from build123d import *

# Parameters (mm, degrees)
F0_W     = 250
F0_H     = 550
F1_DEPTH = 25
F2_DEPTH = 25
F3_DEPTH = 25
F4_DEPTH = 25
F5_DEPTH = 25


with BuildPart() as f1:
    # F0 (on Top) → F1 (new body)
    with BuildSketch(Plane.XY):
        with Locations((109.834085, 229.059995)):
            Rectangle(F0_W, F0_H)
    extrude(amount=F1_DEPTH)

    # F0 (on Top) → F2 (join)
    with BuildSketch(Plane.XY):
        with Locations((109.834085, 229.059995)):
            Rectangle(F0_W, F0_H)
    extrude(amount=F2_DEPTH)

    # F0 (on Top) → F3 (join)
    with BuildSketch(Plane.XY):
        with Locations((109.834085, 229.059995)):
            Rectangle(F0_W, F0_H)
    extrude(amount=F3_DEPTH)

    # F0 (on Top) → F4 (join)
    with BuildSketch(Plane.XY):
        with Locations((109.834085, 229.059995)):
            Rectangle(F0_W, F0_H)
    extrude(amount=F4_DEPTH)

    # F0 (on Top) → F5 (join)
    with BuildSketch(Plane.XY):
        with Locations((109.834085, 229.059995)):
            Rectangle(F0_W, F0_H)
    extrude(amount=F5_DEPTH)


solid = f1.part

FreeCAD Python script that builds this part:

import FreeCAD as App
import Part
import Sketcher

V = App.Vector
Q = App.Units.Quantity

doc = App.newDocument("Part")
params = doc.addObject("Spreadsheet::Sheet", "Params")
for row, (alias, value) in enumerate([
    ("sketch1_width", "250 mm"),
    ("sketch1_height", "550 mm"),
    ("pad1_length", "25 mm"),
    ("sketch2_width", "250 mm"),
    ("sketch2_height", "550 mm"),
    ("pad2_length", "25 mm"),
    ("sketch3_width", "250 mm"),
    ("sketch3_height", "550 mm"),
    ("pad3_length", "25 mm"),
    ("sketch4_width", "250 mm"),
    ("sketch4_height", "550 mm"),
    ("pad4_length", "25 mm"),
    ("sketch5_width", "250 mm"),
    ("sketch5_height", "550 mm"),
    ("pad5_length", "25 mm"),
], start=1):
    params.set(f"A{row}", alias)
    params.set(f"B{row}", "=" + value)
    params.setAlias(f"B{row}", alias)

body = doc.addObject("PartDesign::Body", "Body")

sketch1 = body.newObject("Sketcher::SketchObject", "Sketch")
sketch1.AttachmentSupport = (doc.getObject("XY_Plane"), [""])
sketch1.MapMode = "FlatFace"
sketch1.addGeometry([
    Part.LineSegment(V(-15.165915, 504.059995, 0), V(-15.165915, -45.940005, 0)),
    Part.LineSegment(V(-15.165915, -45.940005, 0), V(234.834085, -45.940005, 0)),
    Part.LineSegment(V(234.834085, -45.940005, 0), V(234.834085, 504.059995, 0)),
    Part.LineSegment(V(234.834085, 504.059995, 0), V(-15.165915, 504.059995, 0)),
], False)
sketch1.addConstraint([
    Sketcher.Constraint("Coincident", 0, 2, 1, 1),
    Sketcher.Constraint("Coincident", 1, 2, 2, 1),
    Sketcher.Constraint("Coincident", 2, 2, 3, 1),
    Sketcher.Constraint("Coincident", 3, 2, 0, 1),
    Sketcher.Constraint("Vertical", 0),
    Sketcher.Constraint("Horizontal", 1),
    Sketcher.Constraint("Vertical", 2),
    Sketcher.Constraint("Horizontal", 3),
    Sketcher.Constraint("DistanceX", 1, 1, 1, 2, Q("250 mm")),
    Sketcher.Constraint("DistanceY", 0, 2, 0, 1, Q("550 mm")),
    Sketcher.Constraint("DistanceX", 0, 2, -1, 1, Q("15.165915 mm")),
    Sketcher.Constraint("DistanceY", 0, 2, -1, 1, Q("45.940005 mm")),
])
sketch1.setExpression("Constraints[8]", "Params.sketch1_width")
sketch1.setExpression("Constraints[9]", "Params.sketch1_height")
pad1 = body.newObject("PartDesign::Pad", "Pad")
pad1.Profile = sketch1
pad1.setExpression("Length", "Params.pad1_length")

sketch2 = body.newObject("Sketcher::SketchObject", "Sketch001")
sketch2.AttachmentSupport = (doc.getObject("XY_Plane"), [""])
sketch2.MapMode = "FlatFace"
sketch2.addGeometry([
    Part.LineSegment(V(-15.165915, 504.059995, 0), V(-15.165915, -45.940005, 0)),
    Part.LineSegment(V(-15.165915, -45.940005, 0), V(234.834085, -45.940005, 0)),
    Part.LineSegment(V(234.834085, -45.940005, 0), V(234.834085, 504.059995, 0)),
    Part.LineSegment(V(234.834085, 504.059995, 0), V(-15.165915, 504.059995, 0)),
], False)
sketch2.addConstraint([
    Sketcher.Constraint("Coincident", 0, 2, 1, 1),
    Sketcher.Constraint("Coincident", 1, 2, 2, 1),
    Sketcher.Constraint("Coincident", 2, 2, 3, 1),
    Sketcher.Constraint("Coincident", 3, 2, 0, 1),
    Sketcher.Constraint("Vertical", 0),
    Sketcher.Constraint("Horizontal", 1),
    Sketcher.Constraint("Vertical", 2),
    Sketcher.Constraint("Horizontal", 3),
    Sketcher.Constraint("DistanceX", 1, 1, 1, 2, Q("250 mm")),
    Sketcher.Constraint("DistanceY", 0, 2, 0, 1, Q("550 mm")),
    Sketcher.Constraint("DistanceX", 0, 2, -1, 1, Q("15.165915 mm")),
    Sketcher.Constraint("DistanceY", 0, 2, -1, 1, Q("45.940005 mm")),
])
sketch2.setExpression("Constraints[8]", "Params.sketch2_width")
sketch2.setExpression("Constraints[9]", "Params.sketch2_height")
pad2 = body.newObject("PartDesign::Pad", "Pad001")
pad2.Profile = sketch2
pad2.setExpression("Length", "Params.pad2_length")

sketch3 = body.newObject("Sketcher::SketchObject", "Sketch002")
sketch3.AttachmentSupport = (doc.getObject("XY_Plane"), [""])
sketch3.MapMode = "FlatFace"
sketch3.addGeometry([
    Part.LineSegment(V(-15.165915, 504.059995, 0), V(-15.165915, -45.940005, 0)),
    Part.LineSegment(V(-15.165915, -45.940005, 0), V(234.834085, -45.940005, 0)),
    Part.LineSegment(V(234.834085, -45.940005, 0), V(234.834085, 504.059995, 0)),
    Part.LineSegment(V(234.834085, 504.059995, 0), V(-15.165915, 504.059995, 0)),
], False)
sketch3.addConstraint([
    Sketcher.Constraint("Coincident", 0, 2, 1, 1),
    Sketcher.Constraint("Coincident", 1, 2, 2, 1),
    Sketcher.Constraint("Coincident", 2, 2, 3, 1),
    Sketcher.Constraint("Coincident", 3, 2, 0, 1),
    Sketcher.Constraint("Vertical", 0),
    Sketcher.Constraint("Horizontal", 1),
    Sketcher.Constraint("Vertical", 2),
    Sketcher.Constraint("Horizontal", 3),
    Sketcher.Constraint("DistanceX", 1, 1, 1, 2, Q("250 mm")),
    Sketcher.Constraint("DistanceY", 0, 2, 0, 1, Q("550 mm")),
    Sketcher.Constraint("DistanceX", 0, 2, -1, 1, Q("15.165915 mm")),
    Sketcher.Constraint("DistanceY", 0, 2, -1, 1, Q("45.940005 mm")),
])
sketch3.setExpression("Constraints[8]", "Params.sketch3_width")
sketch3.setExpression("Constraints[9]", "Params.sketch3_height")
pad3 = body.newObject("PartDesign::Pad", "Pad002")
pad3.Profile = sketch3
pad3.setExpression("Length", "Params.pad3_length")

sketch4 = body.newObject("Sketcher::SketchObject", "Sketch003")
sketch4.AttachmentSupport = (doc.getObject("XY_Plane"), [""])
sketch4.MapMode = "FlatFace"
sketch4.addGeometry([
    Part.LineSegment(V(-15.165915, 504.059995, 0), V(-15.165915, -45.940005, 0)),
    Part.LineSegment(V(-15.165915, -45.940005, 0), V(234.834085, -45.940005, 0)),
    Part.LineSegment(V(234.834085, -45.940005, 0), V(234.834085, 504.059995, 0)),
    Part.LineSegment(V(234.834085, 504.059995, 0), V(-15.165915, 504.059995, 0)),
], False)
sketch4.addConstraint([
    Sketcher.Constraint("Coincident", 0, 2, 1, 1),
    Sketcher.Constraint("Coincident", 1, 2, 2, 1),
    Sketcher.Constraint("Coincident", 2, 2, 3, 1),
    Sketcher.Constraint("Coincident", 3, 2, 0, 1),
    Sketcher.Constraint("Vertical", 0),
    Sketcher.Constraint("Horizontal", 1),
    Sketcher.Constraint("Vertical", 2),
    Sketcher.Constraint("Horizontal", 3),
    Sketcher.Constraint("DistanceX", 1, 1, 1, 2, Q("250 mm")),
    Sketcher.Constraint("DistanceY", 0, 2, 0, 1, Q("550 mm")),
    Sketcher.Constraint("DistanceX", 0, 2, -1, 1, Q("15.165915 mm")),
    Sketcher.Constraint("DistanceY", 0, 2, -1, 1, Q("45.940005 mm")),
])
sketch4.setExpression("Constraints[8]", "Params.sketch4_width")
sketch4.setExpression("Constraints[9]", "Params.sketch4_height")
pad4 = body.newObject("PartDesign::Pad", "Pad003")
pad4.Profile = sketch4
pad4.setExpression("Length", "Params.pad4_length")

sketch5 = body.newObject("Sketcher::SketchObject", "Sketch004")
sketch5.AttachmentSupport = (doc.getObject("XY_Plane"), [""])
sketch5.MapMode = "FlatFace"
sketch5.addGeometry([
    Part.LineSegment(V(-15.165915, 504.059995, 0), V(-15.165915, -45.940005, 0)),
    Part.LineSegment(V(-15.165915, -45.940005, 0), V(234.834085, -45.940005, 0)),
    Part.LineSegment(V(234.834085, -45.940005, 0), V(234.834085, 504.059995, 0)),
    Part.LineSegment(V(234.834085, 504.059995, 0), V(-15.165915, 504.059995, 0)),
], False)
sketch5.addConstraint([
    Sketcher.Constraint("Coincident", 0, 2, 1, 1),
    Sketcher.Constraint("Coincident", 1, 2, 2, 1),
    Sketcher.Constraint("Coincident", 2, 2, 3, 1),
    Sketcher.Constraint("Coincident", 3, 2, 0, 1),
    Sketcher.Constraint("Vertical", 0),
    Sketcher.Constraint("Horizontal", 1),
    Sketcher.Constraint("Vertical", 2),
    Sketcher.Constraint("Horizontal", 3),
    Sketcher.Constraint("DistanceX", 1, 1, 1, 2, Q("250 mm")),
    Sketcher.Constraint("DistanceY", 0, 2, 0, 1, Q("550 mm")),
    Sketcher.Constraint("DistanceX", 0, 2, -1, 1, Q("15.165915 mm")),
    Sketcher.Constraint("DistanceY", 0, 2, -1, 1, Q("45.940005 mm")),
])
sketch5.setExpression("Constraints[8]", "Params.sketch5_width")
sketch5.setExpression("Constraints[9]", "Params.sketch5_height")
pad5 = body.newObject("PartDesign::Pad", "Pad004")
pad5.Profile = sketch5
pad5.setExpression("Length", "Params.pad5_length")

doc.recompute()
